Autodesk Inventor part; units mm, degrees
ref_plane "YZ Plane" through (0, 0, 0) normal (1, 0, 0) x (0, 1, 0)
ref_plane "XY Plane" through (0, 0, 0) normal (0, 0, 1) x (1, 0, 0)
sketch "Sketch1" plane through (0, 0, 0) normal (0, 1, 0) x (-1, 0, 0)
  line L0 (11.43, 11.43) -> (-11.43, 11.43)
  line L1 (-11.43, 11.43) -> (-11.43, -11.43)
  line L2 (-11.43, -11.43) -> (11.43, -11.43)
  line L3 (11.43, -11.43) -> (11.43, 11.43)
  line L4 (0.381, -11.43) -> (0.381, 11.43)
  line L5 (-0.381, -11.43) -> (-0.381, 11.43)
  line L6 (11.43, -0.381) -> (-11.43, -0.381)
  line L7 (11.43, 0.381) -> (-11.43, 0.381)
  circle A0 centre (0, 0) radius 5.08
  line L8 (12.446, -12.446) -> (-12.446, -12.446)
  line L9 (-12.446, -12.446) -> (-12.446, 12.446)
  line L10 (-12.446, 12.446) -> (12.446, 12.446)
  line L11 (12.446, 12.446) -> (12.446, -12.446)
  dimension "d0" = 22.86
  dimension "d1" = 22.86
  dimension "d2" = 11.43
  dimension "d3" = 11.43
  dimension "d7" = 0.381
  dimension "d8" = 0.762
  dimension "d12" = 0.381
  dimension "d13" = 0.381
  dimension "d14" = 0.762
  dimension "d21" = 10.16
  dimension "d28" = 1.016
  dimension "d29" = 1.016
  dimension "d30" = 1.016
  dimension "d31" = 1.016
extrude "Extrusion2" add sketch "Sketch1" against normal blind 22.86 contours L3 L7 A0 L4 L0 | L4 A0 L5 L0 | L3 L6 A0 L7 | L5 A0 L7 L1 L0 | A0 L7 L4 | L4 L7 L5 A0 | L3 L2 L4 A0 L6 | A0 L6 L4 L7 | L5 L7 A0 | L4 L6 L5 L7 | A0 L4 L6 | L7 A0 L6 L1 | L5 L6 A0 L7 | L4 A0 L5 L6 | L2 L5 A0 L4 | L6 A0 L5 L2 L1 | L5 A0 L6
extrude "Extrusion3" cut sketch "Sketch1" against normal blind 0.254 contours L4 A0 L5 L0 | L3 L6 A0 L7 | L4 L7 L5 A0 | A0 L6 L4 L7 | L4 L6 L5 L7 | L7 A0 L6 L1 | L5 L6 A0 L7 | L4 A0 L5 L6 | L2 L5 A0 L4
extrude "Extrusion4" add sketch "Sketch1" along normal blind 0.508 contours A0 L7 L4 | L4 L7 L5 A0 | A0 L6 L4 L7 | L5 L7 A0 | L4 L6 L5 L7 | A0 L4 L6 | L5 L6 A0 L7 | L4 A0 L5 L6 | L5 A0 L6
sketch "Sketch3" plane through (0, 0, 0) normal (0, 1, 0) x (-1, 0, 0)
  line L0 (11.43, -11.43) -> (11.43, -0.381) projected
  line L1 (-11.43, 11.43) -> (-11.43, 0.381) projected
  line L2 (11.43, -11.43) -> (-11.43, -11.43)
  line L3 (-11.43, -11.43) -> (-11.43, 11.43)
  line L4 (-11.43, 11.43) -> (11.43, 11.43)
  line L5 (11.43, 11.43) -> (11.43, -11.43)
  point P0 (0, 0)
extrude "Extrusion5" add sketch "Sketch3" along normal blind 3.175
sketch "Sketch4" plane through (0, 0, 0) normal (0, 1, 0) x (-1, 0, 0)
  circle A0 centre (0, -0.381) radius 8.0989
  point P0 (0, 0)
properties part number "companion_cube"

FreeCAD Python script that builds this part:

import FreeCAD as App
import Part
import Sketcher

V = App.Vector
Q = App.Units.Quantity


def add_polygon(sketch, points):
    """Adds a closed chain of lines whose ends are joined by coincident constraints."""
    first, n = sketch.GeometryCount, len(points)
    for a, b in zip(points, points[1:] + points[:1]):
        sketch.addGeometry(Part.LineSegment(App.Vector(*a, 0), App.Vector(*b, 0)), False)
    for i in range(n):
        sketch.addConstraint(Sketcher.Constraint("Coincident", first + i, 2, first + (i + 1) % n, 1))

doc = App.newDocument("Part")
params = doc.addObject("Spreadsheet::Sheet", "Params")
for row, (alias, value) in enumerate([
    ("sketch1_width", "0.9 in"),
    ("pad1_length", "0.9 in"),
    ("sketch2_width", "0.03 in"),
    ("pocket1_length", "0.01 in"),
    ("sketch3_diameter", "0.4 in"),
    ("pad2_length", "0.02 in"),
    ("sketch4_width", "0.9 in"),
    ("pad3_length", "0.125 in"),
], start=1):
    params.set(f"A{row}", alias)
    params.set(f"B{row}", "=" + value)
    params.setAlias(f"B{row}", alias)

body = doc.addObject("PartDesign::Body", "Body")

sketch1 = body.newObject("Sketcher::SketchObject", "Sketch")
sketch1.AttachmentSupport = (doc.getObject("XZ_Plane"), [""])
sketch1.MapMode = "FlatFace"
add_polygon(sketch1, [(-11, 11), (11, 11), (11, -11), (-11, -11)])
sketch1.addConstraint(Sketcher.Constraint("Horizontal", 0))
sketch1.addConstraint(Sketcher.Constraint("Vertical", 1))
sketch1.addConstraint(Sketcher.Constraint("Horizontal", 2))
sketch1.addConstraint(Sketcher.Constraint("Vertical", 3))
sketch1.addConstraint(Sketcher.Constraint("Symmetric", 0, 2, 2, 2, -1, 1))
sketch1.addConstraint(Sketcher.Constraint("Equal", 2, 1))
sketch1.addConstraint(Sketcher.Constraint("DistanceX", 0, 1, 0, 2, Q("0.9 in")))
sketch1.setExpression("Constraints[10]", "Params.sketch1_width")
pad1 = body.newObject("PartDesign::Pad", "Pad")
pad1.Profile = sketch1
pad1.setExpression("Length", "Params.pad1_length")

sketch2 = body.newObject("Sketcher::SketchObject", "Sketch001")
sketch2.AttachmentSupport = (doc.getObject("XZ_Plane"), [""])
sketch2.MapMode = "FlatFace"
add_polygon(sketch2, [(-0.4, 11.4), (0.4, 11.4), (0.4, 0.4), (11.4, 0.4), (11.4, -0.4), (0.4, -0.4), (0.4, -11.4), (-0.4, -11.4), (-0.4, -0.4), (-11.4, -0.4), (-11.4, 0.4), (-0.4, 0.4)])
sketch2.addConstraint(Sketcher.Constraint("Horizontal", 0))
sketch2.addConstraint(Sketcher.Constraint("Vertical", 1))
sketch2.addConstraint(Sketcher.Constraint("Horizontal", 2))
sketch2.addConstraint(Sketcher.Constraint("Vertical", 3))
sketch2.addConstraint(Sketcher.Constraint("Horizontal", 4))
sketch2.addConstraint(Sketcher.Constraint("Vertical", 5))
sketch2.addConstraint(Sketcher.Constraint("Horizontal", 6))
sketch2.addConstraint(Sketcher.Constraint("Vertical", 7))
sketch2.addConstraint(Sketcher.Constraint("Horizontal", 8))
sketch2.addConstraint(Sketcher.Constraint("Vertical", 9))
sketch2.addConstraint(Sketcher.Constraint("Horizontal", 10))
sketch2.addConstraint(Sketcher.Constraint("Vertical", 11))
sketch2.addConstraint(Sketcher.Constraint("Symmetric", 0, 2, 6, 2, -1, 1))
sketch2.addConstraint(Sketcher.Constraint("Symmetric", 2, 2, 8, 2, -1, 1))
sketch2.addConstraint(Sketcher.Constraint("Symmetric", 4, 2, 10, 2, -1, 1))
sketch2.addConstraint(Sketcher.Constraint("Symmetric", 4, 2, 7, 2, -2))
sketch2.addConstraint(Sketcher.Constraint("Equal", 10, 1))
sketch2.addConstraint(Sketcher.Constraint("Equal", 6, 3))
sketch2.addConstraint(Sketcher.Constraint("DistanceX", 0, 1, 0, 2, Q("0.03 in")))
sketch2.addConstraint(Sketcher.Constraint("DistanceY", 5, 2, 0, 2, Q("0.9 in")))
sketch2.setExpression("Constraints[30]", "Params.sketch2_width")
pocket1 = body.newObject("PartDesign::Pocket", "Pocket")
pocket1.Profile = sketch2
pocket1.setExpression("Length", "Params.pocket1_length")
pocket1.Reversed = True

sketch3 = body.newObject("Sketcher::SketchObject", "Sketch002")
sketch3.AttachmentSupport = (doc.getObject("XZ_Plane"), [""])
sketch3.MapMode = "FlatFace"
sketch3.addGeometry(Part.Circle(V(0, 0, 0), V(0, 0, 1), 5), False)
sketch3.addConstraint(Sketcher.Constraint("Coincident", 0, 3, -1, 1))
sketch3.addConstraint(Sketcher.Constraint("Diameter", 0, Q("0.4 in")))
sketch3.setExpression("Constraints[1]", "Params.sketch3_diameter")
pad2 = body.newObject("PartDesign::Pad", "Pad001")
pad2.Profile = sketch3
pad2.setExpression("Length", "Params.pad2_length")
pad2.Reversed = True

sketch4 = body.newObject("Sketcher::SketchObject", "Sketch003")
sketch4.AttachmentSupport = (doc.getObject("XZ_Plane"), [""])
sketch4.MapMode = "FlatFace"
add_polygon(sketch4, [(11, -11), (-11, -11), (-11, 11), (11, 11)])
sketch4.addConstraint(Sketcher.Constraint("Horizontal", 0))
sketch4.addConstraint(Sketcher.Constraint("Vertical", 1))
sketch4.addConstraint(Sketcher.Constraint("Horizontal", 2))
sketch4.addConstraint(Sketcher.Constraint("Vertical", 3))
sketch4.addConstraint(Sketcher.Constraint("Symmetric", 0, 2, 2, 2, -1, 1))
sketch4.addConstraint(Sketcher.Constraint("Equal", 2, 1))
sketch4.addConstraint(Sketcher.Constraint("DistanceX", 0, 2, 0, 1, Q("0.9 in")))
sketch4.setExpression("Constraints[10]", "Params.sketch4_width")
pad3 = body.newObject("PartDesign::Pad", "Pad002")
pad3.Profile = sketch4
pad3.setExpression("Length", "Params.pad3_length")
pad3.Reversed = True

doc.recompute()
